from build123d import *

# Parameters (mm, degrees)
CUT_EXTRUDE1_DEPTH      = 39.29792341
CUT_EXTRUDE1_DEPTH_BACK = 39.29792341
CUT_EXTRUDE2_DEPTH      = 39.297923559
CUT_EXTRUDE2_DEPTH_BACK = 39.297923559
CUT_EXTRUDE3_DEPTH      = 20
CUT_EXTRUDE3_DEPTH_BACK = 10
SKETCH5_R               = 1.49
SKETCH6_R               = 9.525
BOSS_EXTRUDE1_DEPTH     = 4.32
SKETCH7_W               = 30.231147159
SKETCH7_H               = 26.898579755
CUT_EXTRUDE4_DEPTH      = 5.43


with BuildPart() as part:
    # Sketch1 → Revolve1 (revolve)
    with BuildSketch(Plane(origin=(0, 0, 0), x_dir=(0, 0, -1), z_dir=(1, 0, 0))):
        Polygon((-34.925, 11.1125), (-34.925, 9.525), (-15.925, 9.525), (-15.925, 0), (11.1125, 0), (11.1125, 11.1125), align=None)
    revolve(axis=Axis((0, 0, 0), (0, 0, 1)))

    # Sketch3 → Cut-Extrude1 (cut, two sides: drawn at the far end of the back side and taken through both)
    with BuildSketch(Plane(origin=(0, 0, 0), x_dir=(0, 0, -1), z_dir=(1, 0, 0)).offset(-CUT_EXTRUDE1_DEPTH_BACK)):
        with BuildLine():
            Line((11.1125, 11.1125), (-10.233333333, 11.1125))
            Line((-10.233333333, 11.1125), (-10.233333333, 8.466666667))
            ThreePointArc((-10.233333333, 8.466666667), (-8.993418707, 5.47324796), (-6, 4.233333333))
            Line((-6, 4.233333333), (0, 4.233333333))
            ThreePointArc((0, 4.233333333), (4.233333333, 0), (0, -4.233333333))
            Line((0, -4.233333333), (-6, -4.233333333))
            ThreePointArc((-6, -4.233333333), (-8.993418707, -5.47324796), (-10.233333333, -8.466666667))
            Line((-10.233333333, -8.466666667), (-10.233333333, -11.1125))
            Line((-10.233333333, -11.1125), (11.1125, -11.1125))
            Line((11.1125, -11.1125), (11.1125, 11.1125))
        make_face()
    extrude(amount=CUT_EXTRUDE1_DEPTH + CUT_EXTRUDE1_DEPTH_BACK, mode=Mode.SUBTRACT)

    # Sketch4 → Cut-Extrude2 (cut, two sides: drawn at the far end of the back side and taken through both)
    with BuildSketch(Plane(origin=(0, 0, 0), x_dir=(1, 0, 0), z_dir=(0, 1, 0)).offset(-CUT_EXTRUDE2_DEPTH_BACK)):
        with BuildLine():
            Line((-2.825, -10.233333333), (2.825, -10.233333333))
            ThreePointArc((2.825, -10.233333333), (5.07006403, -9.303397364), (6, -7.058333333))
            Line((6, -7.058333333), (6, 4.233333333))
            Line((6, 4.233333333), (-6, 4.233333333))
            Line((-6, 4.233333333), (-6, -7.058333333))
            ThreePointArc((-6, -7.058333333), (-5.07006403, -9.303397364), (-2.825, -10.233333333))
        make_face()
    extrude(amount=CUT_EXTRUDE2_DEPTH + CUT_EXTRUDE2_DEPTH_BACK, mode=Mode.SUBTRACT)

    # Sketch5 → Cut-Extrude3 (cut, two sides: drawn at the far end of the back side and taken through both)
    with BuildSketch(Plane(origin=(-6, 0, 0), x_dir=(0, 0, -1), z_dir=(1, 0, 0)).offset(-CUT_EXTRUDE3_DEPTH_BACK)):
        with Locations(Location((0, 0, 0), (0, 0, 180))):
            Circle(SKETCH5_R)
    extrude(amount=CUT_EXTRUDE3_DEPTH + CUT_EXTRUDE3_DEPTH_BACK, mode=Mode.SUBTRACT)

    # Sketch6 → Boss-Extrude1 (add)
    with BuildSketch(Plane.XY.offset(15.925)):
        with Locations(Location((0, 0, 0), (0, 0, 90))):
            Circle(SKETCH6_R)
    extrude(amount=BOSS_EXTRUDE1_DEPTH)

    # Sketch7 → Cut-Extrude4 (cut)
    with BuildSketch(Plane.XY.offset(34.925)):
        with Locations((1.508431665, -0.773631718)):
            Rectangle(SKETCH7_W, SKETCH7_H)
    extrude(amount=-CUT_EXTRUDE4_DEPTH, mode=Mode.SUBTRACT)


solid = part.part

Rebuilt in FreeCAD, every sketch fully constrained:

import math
import FreeCAD as App
import Part
import Sketcher
from FreeCAD import Vector
Q = App.Units.Quantity

doc = App.newDocument("Part")
body = doc.addObject("PartDesign::Body", "Body")

# Sketch on YZ plane
sketch1 = doc.addObject("Sketcher::SketchObject", "Sketch")
body.addObject(sketch1)
sketch1.AttachmentSupport = (doc.YZ_Plane, [""])
sketch1.MapMode = "FlatFace"
sketch1.addGeometry(Part.LineSegment(Vector(11.1, 34.9, 0), Vector(9.5, 34.9, 0)), False)
sketch1.addGeometry(Part.LineSegment(Vector(9.5, 34.9, 0), Vector(9.5, 15.9, 0)), False)
sketch1.addGeometry(Part.LineSegment(Vector(9.5, 15.9, 0), Vector(0, 15.9, 0)), False)
sketch1.addGeometry(Part.LineSegment(Vector(0, 15.9, 0), Vector(0, -11.1, 0)), False)
sketch1.addGeometry(Part.LineSegment(Vector(0, -11.1, 0), Vector(11.1, -11.1, 0)), False)
sketch1.addGeometry(Part.LineSegment(Vector(11.1, -11.1, 0), Vector(11.1, 34.9, 0)), False)
sketch1.addConstraint(Sketcher.Constraint("Coincident", 0, 2, 1, 1))
sketch1.addConstraint(Sketcher.Constraint("Coincident", 1, 2, 2, 1))
sketch1.addConstraint(Sketcher.Constraint("Coincident", 2, 2, 3, 1))
sketch1.addConstraint(Sketcher.Constraint("Coincident", 3, 2, 4, 1))
sketch1.addConstraint(Sketcher.Constraint("Coincident", 4, 2, 5, 1))
sketch1.addConstraint(Sketcher.Constraint("Coincident", 5, 2, 0, 1))
sketch1.addConstraint(Sketcher.Constraint("Horizontal", 0))
sketch1.addConstraint(Sketcher.Constraint("Vertical", 1))
sketch1.addConstraint(Sketcher.Constraint("Horizontal", 2))
sketch1.addConstraint(Sketcher.Constraint("Vertical", 3))
sketch1.addConstraint(Sketcher.Constraint("Horizontal", 4))
sketch1.addConstraint(Sketcher.Constraint("Vertical", 5))
sketch1.addConstraint(Sketcher.Constraint("PointOnObject", 2, 2, -2))
sketch1.addConstraint(Sketcher.Constraint("DistanceX", 0, 2, 0, 1, Q("0.0625 in")))
sketch1.addConstraint(Sketcher.Constraint("DistanceX", 2, 2, 2, 1, Q("0.375 in")))
sketch1.addConstraint(Sketcher.Constraint("DistanceY", 5, 1, 5, 2, Q("1.8125 in")))
sketch1.addConstraint(Sketcher.Constraint("DistanceY", -1, 1, 0, 2, Q("1.375 in")))
sketch1.addConstraint(Sketcher.Constraint("DistanceY", 1, 2, 1, 1, Q("19 mm")))
revolution = doc.addObject("PartDesign::Revolution", "Revolution")
body.addObject(revolution)
revolution.Profile = sketch1
revolution.ReferenceAxis = (sketch1, ["V_Axis"])
revolution.Angle = 360

# Sketch on YZ plane
sketch2 = doc.addObject("Sketcher::SketchObject", "Sketch001")
body.addObject(sketch2)
sketch2.AttachmentSupport = (doc.YZ_Plane, [""])
sketch2.MapMode = "FlatFace"
sketch2.addGeometry(Part.LineSegment(Vector(11.1, -11.1, 0), Vector(11.1, 10.2, 0)), False)
sketch2.addGeometry(Part.LineSegment(Vector(11.1, 10.2, 0), Vector(8.5, 10.2, 0)), False)
sketch2.addGeometry(Part.ArcOfCircle(Part.Circle(Vector(8.5, 6, 0), Vector(0, 0, 1), 4.2), math.radians(90), math.radians(180)), False)
sketch2.addGeometry(Part.LineSegment(Vector(4.2, 6, 0), Vector(4.2, 0, 0)), False)
sketch2.addGeometry(Part.ArcOfCircle(Part.Circle(Vector(0, 0, 0), Vector(0, 0, 1), 4.2), math.radians(180), math.radians(360)), False)
sketch2.addGeometry(Part.LineSegment(Vector(-4.2, 0, 0), Vector(-4.2, 6, 0)), False)
sketch2.addGeometry(Part.ArcOfCircle(Part.Circle(Vector(-8.5, 6, 0), Vector(0, 0, 1), 4.2), math.radians(0), math.radians(90)), False)
sketch2.addGeometry(Part.LineSegment(Vector(-8.5, 10.2, 0), Vector(-11.1, 10.2, 0)), False)
sketch2.addGeometry(Part.LineSegment(Vector(-11.1, 10.2, 0), Vector(-11.1, -11.1, 0)), False)
sketch2.addGeometry(Part.LineSegment(Vector(-11.1, -11.1, 0), Vector(11.1, -11.1, 0)), False)
sketch2.addConstraint(Sketcher.Constraint("Coincident", 0, 2, 1, 1))
sketch2.addConstraint(Sketcher.Constraint("Tangent", 1, 2, 2, 1))
sketch2.addConstraint(Sketcher.Constraint("Tangent", 2, 2, 3, 1))
sketch2.addConstraint(Sketcher.Constraint("Tangent", 3, 2, 4, 2))
sketch2.addConstraint(Sketcher.Constraint("Tangent", 4, 1, 5, 1))
sketch2.addConstraint(Sketcher.Constraint("Tangent", 5, 2, 6, 1))
sketch2.addConstraint(Sketcher.Constraint("Tangent", 6, 2, 7, 1))
sketch2.addConstraint(Sketcher.Constraint("Coincident", 7, 2, 8, 1))
sketch2.addConstraint(Sketcher.Constraint("Coincident", 8, 2, 9, 1))
sketch2.addConstraint(Sketcher.Constraint("Coincident", 9, 2, 0, 1))
sketch2.addConstraint(Sketcher.Constraint("Vertical", 0))
sketch2.addConstraint(Sketcher.Constraint("Horizontal", 1))
sketch2.addConstraint(Sketcher.Constraint("Vertical", 3))
sketch2.addConstraint(Sketcher.Constraint("Vertical", 5))
sketch2.addConstraint(Sketcher.Constraint("Horizontal", 7))
sketch2.addConstraint(Sketcher.Constraint("Vertical", 8))
sketch2.addConstraint(Sketcher.Constraint("Horizontal", 9))
sketch2.addConstraint(Sketcher.Constraint("Coincident", 4, 3, -1, 1))
sketch2.addConstraint(Sketcher.Constraint("Equal", 2, 4))
sketch2.addConstraint(Sketcher.Constraint("Equal", 4, 6))
sketch2.addConstraint(Sketcher.Constraint("Symmetric", 0, 2, 7, 2, -2))
sketch2.addConstraint(Sketcher.Constraint("DistanceX", 6, 3, 2, 2, Q("0.5 in")))
sketch2.addConstraint(Sketcher.Constraint("DistanceX", 9, 1, 9, 2, Q("0.875 in")))
sketch2.addConstraint(Sketcher.Constraint("DistanceY", 8, 2, -1, 1, Q("0.4375 in")))
sketch2.addConstraint(Sketcher.Constraint("DistanceY", 3, 2, 3, 1, Q("6 mm")))
pocket1 = doc.addObject("PartDesign::Pocket", "Pocket")
body.addObject(pocket1)
pocket1.Profile = sketch2
pocket1.Type = "ThroughAll"
pocket1.Midplane = True

# Sketch on XZ plane
sketch3 = doc.addObject("Sketcher::SketchObject", "Sketch002")
body.addObject(sketch3)
sketch3.AttachmentSupport = (doc.XZ_Plane, [""])
sketch3.MapMode = "FlatFace"
sketch3.addGeometry(Part.LineSegment(Vector(-2.8, 10.2, 0), Vector(2.8, 10.2, 0)), False)
sketch3.addGeometry(Part.ArcOfCircle(Part.Circle(Vector(2.8, 7.1, 0), Vector(0, 0, 1), 3.2), math.radians(0), math.radians(90)), False)
sketch3.addGeometry(Part.LineSegment(Vector(6, 7.1, 0), Vector(6, -4.2, 0)), False)
sketch3.addGeometry(Part.LineSegment(Vector(6, -4.2, 0), Vector(-6, -4.2, 0)), False)
sketch3.addGeometry(Part.LineSegment(Vector(-6, -4.2, 0), Vector(-6, 7.1, 0)), False)
sketch3.addGeometry(Part.ArcOfCircle(Part.Circle(Vector(-2.8, 7.1, 0), Vector(0, 0, 1), 3.2), math.radians(90), math.radians(180)), False)
sketch3.addConstraint(Sketcher.Constraint("Tangent", 0, 2, 1, 2))
sketch3.addConstraint(Sketcher.Constraint("Tangent", 1, 1, 2, 1))
sketch3.addConstraint(Sketcher.Constraint("Coincident", 2, 2, 3, 1))
sketch3.addConstraint(Sketcher.Constraint("Coincident", 3, 2, 4, 1))
sketch3.addConstraint(Sketcher.Constraint("Tangent", 4, 2, 5, 2))
sketch3.addConstraint(Sketcher.Constraint("Tangent", 5, 1, 0, 1))
sketch3.addConstraint(Sketcher.Constraint("Horizontal", 0))
sketch3.addConstraint(Sketcher.Constraint("Vertical", 2))
sketch3.addConstraint(Sketcher.Constraint("Horizontal", 3))
sketch3.addConstraint(Sketcher.Constraint("Vertical", 4))
sketch3.addConstraint(Sketcher.Constraint("Equal", 1, 5))
sketch3.addConstraint(Sketcher.Constraint("Radius", 1, Q("0.125 in")))
sketch3.addConstraint(Sketcher.Constraint("DistanceX", 0, 1, 0, 2, Q("5.65 mm")))
sketch3.addConstraint(Sketcher.Constraint("DistanceX", -1, 1, 1, 3, Q("2.825 mm")))
sketch3.addConstraint(Sketcher.Constraint("DistanceY", 2, 2, 2, 1, Q("11.291667 mm")))
sketch3.addConstraint(Sketcher.Constraint("DistanceY", -1, 1, 1, 3, Q("7.058333 mm")))
pocket2 = doc.addObject("PartDesign::Pocket", "Pocket001")
body.addObject(pocket2)
pocket2.Profile = sketch3
pocket2.Type = "ThroughAll"
pocket2.Midplane = True

# Sketch on YZ plane
sketch4 = doc.addObject("Sketcher::SketchObject", "Sketch003")
body.addObject(sketch4)
sketch4.AttachmentSupport = (doc.YZ_Plane, [""])
sketch4.MapMode = "FlatFace"
sketch4.AttachmentOffset = App.Placement(Vector(0, 0, -6), App.Rotation())
sketch4.addGeometry(Part.Circle(Vector(0, 0, 0), Vector(0, 0, 1), 1.5), False)
sketch4.addConstraint(Sketcher.Constraint("Coincident", 0, 3, -1, 1))
sketch4.addConstraint(Sketcher.Constraint("Diameter", 0, Q("2.98 mm")))
pocket3 = doc.addObject("PartDesign::Pocket", "Pocket002")
body.addObject(pocket3)
pocket3.Profile = sketch4
pocket3.Type = "ThroughAll"
pocket3.Midplane = True

# Sketch on XY plane
sketch5 = doc.addObject("Sketcher::SketchObject", "Sketch004")
body.addObject(sketch5)
sketch5.AttachmentSupport = (doc.XY_Plane, [""])
sketch5.MapMode = "FlatFace"
sketch5.AttachmentOffset = App.Placement(Vector(0, 0, 15.925), App.Rotation())
sketch5.addGeometry(Part.Circle(Vector(0, 0, 0), Vector(0, 0, 1), 10), False)
sketch5.addConstraint(Sketcher.Constraint("Coincident", 0, 3, -1, 1))
sketch5.addConstraint(Sketcher.Constraint("Diameter", 0, Q("0.75 in")))
pad1 = doc.addObject("PartDesign::Pad", "Pad")
body.addObject(pad1)
pad1.Profile = sketch5
pad1.Length = 4.32

# Sketch on XY plane
sketch6 = doc.addObject("Sketcher::SketchObject", "Sketch005")
body.addObject(sketch6)
sketch6.AttachmentSupport = (doc.XY_Plane, [""])
sketch6.MapMode = "FlatFace"
sketch6.AttachmentOffset = App.Placement(Vector(0, 0, 1.375 * 25.4), App.Rotation())
sketch6.addGeometry(Part.LineSegment(Vector(-14, 13, 0), Vector(-14, -14, 0)), False)
sketch6.addGeometry(Part.LineSegment(Vector(-14, -14, 0), Vector(17, -14, 0)), False)
sketch6.addGeometry(Part.LineSegment(Vector(17, -14, 0), Vector(17, 13, 0)), False)
sketch6.addGeometry(Part.LineSegment(Vector(17, 13, 0), Vector(-14, 13, 0)), False)
sketch6.addConstraint(Sketcher.Constraint("Coincident", 0, 2, 1, 1))
sketch6.addConstraint(Sketcher.Constraint("Coincident", 1, 2, 2, 1))
sketch6.addConstraint(Sketcher.Constraint("Coincident", 2, 2, 3, 1))
sketch6.addConstraint(Sketcher.Constraint("Coincident", 3, 2, 0, 1))
sketch6.addConstraint(Sketcher.Constraint("Vertical", 0))
sketch6.addConstraint(Sketcher.Constraint("Horizontal", 1))
sketch6.addConstraint(Sketcher.Constraint("Vertical", 2))
sketch6.addConstraint(Sketcher.Constraint("Horizontal", 3))
sketch6.addConstraint(Sketcher.Constraint("DistanceY", 0, 2, 0, 1, Q("26.89858 mm")))
sketch6.addConstraint(Sketcher.Constraint("DistanceX", 1, 1, 1, 2, Q("30.231147 mm")))
sketch6.addConstraint(Sketcher.Constraint("DistanceX", 0, 2, -1, 1, Q("13.607142 mm")))
sketch6.addConstraint(Sketcher.Constraint("DistanceY", 0, 2, -1, 1, Q("14.222922 mm")))
pocket4 = doc.addObject("PartDesign::Pocket", "Pocket003")
body.addObject(pocket4)
pocket4.Profile = sketch6
pocket4.Length = 5.43

doc.recompute()
